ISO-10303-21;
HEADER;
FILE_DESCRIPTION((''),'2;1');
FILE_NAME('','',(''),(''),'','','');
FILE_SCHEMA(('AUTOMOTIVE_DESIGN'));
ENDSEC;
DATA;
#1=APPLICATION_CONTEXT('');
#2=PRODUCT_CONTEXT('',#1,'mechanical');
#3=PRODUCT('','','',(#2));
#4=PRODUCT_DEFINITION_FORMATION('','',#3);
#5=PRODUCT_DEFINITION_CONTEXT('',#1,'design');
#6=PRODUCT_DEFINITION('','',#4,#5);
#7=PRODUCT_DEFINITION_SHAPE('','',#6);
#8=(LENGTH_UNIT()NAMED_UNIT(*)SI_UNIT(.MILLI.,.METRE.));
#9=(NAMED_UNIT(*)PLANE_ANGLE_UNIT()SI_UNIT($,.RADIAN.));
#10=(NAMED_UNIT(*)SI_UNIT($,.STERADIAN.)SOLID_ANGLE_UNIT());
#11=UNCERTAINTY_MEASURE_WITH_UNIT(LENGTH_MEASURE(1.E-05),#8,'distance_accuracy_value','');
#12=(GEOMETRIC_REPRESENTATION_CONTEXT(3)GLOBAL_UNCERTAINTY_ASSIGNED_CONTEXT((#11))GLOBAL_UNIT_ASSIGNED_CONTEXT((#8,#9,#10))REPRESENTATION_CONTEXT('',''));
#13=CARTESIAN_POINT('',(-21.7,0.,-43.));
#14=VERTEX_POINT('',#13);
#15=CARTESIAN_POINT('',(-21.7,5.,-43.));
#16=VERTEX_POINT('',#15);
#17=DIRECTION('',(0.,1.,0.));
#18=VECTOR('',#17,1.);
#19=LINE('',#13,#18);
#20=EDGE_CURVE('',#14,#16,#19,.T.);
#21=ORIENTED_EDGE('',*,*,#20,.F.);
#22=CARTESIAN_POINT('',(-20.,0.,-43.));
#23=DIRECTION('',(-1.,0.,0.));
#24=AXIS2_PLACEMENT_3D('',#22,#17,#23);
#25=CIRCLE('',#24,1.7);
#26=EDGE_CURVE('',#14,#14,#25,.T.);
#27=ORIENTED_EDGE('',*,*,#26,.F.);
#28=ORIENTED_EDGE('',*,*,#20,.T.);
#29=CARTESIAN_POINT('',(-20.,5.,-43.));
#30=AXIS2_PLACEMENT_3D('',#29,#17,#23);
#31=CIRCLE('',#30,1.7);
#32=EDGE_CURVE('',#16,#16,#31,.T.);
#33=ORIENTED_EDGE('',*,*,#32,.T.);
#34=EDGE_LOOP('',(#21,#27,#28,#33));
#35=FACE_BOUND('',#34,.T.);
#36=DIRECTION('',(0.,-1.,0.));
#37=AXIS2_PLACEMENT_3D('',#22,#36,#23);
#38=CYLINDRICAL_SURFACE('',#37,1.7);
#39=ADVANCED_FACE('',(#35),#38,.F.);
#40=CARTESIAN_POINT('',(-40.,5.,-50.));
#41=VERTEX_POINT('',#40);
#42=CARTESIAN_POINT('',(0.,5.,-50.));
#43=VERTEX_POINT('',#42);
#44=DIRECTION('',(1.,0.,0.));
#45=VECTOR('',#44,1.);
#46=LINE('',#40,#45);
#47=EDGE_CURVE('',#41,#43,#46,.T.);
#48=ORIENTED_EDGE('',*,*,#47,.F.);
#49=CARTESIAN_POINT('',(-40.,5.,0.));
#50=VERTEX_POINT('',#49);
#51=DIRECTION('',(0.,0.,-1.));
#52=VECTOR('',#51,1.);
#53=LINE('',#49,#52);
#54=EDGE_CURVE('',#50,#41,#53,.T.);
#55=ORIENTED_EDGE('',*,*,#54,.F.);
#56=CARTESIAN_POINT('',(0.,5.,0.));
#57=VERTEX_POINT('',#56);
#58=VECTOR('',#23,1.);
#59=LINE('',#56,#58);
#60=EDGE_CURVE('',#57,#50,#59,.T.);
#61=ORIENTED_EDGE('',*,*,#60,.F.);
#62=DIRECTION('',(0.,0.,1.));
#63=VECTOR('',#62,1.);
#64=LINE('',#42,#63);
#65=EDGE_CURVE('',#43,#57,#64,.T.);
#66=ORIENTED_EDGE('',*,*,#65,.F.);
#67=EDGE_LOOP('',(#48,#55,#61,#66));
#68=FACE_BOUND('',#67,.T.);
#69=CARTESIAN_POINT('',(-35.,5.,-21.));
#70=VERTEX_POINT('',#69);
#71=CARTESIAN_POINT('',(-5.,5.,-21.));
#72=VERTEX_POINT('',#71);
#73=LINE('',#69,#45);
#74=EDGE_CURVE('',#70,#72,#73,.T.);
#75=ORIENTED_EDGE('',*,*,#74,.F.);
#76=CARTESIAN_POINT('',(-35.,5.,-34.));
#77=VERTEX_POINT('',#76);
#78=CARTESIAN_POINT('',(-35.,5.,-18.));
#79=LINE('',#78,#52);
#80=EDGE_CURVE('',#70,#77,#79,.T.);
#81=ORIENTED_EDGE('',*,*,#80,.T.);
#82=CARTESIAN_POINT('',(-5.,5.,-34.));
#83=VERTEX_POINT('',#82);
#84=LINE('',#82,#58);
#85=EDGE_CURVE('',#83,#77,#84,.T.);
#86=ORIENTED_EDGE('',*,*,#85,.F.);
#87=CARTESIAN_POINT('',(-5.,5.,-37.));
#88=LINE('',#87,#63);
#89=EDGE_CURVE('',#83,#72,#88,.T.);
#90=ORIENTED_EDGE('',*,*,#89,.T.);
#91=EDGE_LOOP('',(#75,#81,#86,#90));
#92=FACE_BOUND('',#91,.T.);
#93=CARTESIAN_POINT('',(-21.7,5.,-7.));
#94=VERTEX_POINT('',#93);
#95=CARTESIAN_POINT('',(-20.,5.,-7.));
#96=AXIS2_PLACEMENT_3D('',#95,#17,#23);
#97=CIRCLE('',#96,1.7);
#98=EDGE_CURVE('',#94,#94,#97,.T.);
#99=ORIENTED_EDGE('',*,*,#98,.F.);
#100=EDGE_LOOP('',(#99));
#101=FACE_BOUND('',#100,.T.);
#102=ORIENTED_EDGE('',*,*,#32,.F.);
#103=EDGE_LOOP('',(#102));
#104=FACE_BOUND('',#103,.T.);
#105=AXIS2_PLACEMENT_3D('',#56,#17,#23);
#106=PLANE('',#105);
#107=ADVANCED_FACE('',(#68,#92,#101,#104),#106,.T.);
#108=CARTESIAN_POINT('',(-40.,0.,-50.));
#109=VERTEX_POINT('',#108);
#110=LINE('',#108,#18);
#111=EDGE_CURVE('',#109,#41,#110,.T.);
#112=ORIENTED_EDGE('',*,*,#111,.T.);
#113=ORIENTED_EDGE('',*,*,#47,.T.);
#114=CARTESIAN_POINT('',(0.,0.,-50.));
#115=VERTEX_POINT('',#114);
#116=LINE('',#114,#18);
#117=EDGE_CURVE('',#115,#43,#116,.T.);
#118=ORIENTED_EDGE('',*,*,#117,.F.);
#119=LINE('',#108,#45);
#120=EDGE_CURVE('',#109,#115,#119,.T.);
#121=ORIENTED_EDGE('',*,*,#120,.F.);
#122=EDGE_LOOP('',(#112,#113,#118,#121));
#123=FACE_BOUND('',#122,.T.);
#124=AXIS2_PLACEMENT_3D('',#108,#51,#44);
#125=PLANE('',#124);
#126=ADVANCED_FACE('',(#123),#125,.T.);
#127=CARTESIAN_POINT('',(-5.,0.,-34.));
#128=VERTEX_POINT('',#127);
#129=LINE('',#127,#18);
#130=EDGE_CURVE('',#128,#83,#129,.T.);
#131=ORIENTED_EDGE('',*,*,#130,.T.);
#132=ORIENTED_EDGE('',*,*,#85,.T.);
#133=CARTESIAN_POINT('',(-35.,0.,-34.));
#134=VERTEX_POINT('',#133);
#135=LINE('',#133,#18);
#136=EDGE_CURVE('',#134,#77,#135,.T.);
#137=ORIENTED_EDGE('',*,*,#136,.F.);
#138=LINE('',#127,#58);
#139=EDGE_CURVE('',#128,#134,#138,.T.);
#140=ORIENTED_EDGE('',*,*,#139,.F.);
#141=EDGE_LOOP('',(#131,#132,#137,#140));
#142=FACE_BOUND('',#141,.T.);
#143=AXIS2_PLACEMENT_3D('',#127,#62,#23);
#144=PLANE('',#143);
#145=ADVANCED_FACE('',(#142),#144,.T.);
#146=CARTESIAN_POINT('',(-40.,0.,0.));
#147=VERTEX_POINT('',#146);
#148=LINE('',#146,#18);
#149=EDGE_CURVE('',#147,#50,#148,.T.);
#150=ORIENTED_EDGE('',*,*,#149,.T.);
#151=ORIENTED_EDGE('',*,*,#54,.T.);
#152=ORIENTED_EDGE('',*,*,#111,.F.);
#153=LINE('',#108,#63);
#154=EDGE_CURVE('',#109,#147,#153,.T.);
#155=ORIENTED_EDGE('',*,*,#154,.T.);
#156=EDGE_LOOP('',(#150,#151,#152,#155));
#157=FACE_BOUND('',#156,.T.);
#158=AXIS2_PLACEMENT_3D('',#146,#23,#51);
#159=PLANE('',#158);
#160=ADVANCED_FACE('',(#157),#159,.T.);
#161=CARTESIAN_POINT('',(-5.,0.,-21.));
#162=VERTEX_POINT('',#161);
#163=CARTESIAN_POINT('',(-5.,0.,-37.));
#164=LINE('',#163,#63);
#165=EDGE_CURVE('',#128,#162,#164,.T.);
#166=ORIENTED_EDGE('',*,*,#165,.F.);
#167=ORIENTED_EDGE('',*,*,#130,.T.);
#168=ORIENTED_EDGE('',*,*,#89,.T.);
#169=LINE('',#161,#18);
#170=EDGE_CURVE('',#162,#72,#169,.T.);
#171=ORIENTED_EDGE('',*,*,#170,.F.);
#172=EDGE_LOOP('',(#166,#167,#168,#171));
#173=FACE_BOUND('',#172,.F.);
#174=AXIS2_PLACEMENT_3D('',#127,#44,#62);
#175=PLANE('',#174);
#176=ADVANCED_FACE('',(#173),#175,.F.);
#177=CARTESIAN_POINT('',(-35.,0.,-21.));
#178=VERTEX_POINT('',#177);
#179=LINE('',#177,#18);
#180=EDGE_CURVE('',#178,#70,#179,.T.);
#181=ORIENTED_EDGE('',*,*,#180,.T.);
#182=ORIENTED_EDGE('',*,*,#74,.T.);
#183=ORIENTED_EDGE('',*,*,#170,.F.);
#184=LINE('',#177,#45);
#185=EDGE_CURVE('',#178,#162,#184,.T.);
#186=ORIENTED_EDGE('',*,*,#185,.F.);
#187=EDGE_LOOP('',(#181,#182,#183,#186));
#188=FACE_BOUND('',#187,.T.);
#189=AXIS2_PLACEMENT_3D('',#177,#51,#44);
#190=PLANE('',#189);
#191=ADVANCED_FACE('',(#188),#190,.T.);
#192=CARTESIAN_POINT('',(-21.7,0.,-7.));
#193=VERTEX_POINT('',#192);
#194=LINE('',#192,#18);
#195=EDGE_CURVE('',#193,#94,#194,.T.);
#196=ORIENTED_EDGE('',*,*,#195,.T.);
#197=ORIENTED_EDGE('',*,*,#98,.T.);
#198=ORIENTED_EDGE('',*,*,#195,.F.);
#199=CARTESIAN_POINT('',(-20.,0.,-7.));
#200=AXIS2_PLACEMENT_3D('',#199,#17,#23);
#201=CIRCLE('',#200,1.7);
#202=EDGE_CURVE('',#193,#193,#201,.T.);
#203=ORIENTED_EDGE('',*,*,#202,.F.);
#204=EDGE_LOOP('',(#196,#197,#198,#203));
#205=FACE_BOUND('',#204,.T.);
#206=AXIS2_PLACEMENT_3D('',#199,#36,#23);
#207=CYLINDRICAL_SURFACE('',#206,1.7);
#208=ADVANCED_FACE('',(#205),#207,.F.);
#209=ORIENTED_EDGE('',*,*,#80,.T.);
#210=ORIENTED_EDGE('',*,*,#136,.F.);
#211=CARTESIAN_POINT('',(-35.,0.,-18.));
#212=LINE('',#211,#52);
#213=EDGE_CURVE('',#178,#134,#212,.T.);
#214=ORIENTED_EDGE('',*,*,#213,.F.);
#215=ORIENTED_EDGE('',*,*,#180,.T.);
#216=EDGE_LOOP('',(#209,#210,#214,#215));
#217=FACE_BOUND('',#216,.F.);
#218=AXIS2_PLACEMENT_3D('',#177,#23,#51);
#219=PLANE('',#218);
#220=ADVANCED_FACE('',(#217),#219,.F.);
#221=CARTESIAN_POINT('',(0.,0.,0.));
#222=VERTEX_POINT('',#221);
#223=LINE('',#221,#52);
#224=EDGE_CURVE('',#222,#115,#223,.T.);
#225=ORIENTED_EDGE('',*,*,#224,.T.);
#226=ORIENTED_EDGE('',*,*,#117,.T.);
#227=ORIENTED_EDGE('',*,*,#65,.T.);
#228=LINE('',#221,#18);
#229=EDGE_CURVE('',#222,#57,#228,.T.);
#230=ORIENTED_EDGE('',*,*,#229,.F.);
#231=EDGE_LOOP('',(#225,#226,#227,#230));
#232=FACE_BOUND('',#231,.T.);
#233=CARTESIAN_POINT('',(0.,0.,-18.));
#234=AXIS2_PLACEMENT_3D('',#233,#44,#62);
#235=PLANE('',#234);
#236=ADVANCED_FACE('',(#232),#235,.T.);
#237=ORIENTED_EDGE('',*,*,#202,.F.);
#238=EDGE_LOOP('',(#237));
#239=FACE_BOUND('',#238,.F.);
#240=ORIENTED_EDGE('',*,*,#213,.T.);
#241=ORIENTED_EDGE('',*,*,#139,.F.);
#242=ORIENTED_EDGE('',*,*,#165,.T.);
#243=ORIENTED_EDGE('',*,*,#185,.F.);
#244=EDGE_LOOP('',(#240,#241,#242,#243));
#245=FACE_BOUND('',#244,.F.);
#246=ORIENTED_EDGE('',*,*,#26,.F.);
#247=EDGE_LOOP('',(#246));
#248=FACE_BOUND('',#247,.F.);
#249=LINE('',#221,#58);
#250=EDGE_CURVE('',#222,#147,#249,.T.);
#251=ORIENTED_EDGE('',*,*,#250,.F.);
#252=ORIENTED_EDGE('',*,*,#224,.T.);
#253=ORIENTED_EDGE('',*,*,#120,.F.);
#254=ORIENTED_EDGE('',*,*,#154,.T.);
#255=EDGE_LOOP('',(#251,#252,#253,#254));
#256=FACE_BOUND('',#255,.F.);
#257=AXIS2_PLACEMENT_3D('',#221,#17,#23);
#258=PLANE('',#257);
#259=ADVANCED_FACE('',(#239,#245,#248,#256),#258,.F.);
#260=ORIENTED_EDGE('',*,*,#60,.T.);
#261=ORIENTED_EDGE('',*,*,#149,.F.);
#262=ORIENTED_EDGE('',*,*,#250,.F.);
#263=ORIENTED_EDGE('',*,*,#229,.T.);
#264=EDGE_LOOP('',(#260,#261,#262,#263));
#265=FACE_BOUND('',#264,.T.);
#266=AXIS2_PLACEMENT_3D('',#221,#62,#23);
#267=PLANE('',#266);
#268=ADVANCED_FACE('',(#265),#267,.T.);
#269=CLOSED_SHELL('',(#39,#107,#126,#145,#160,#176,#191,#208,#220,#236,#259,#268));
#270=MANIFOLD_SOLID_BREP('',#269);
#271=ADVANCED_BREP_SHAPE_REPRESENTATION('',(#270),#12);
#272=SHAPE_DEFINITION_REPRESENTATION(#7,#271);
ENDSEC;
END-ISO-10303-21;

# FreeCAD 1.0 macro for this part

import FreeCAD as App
import Part
import Sketcher
from FreeCAD import Vector
Q = App.Units.Quantity


def add_polygon(sketch, points):
    """Adds a closed chain of lines whose ends are joined by coincident constraints."""
    first, n = sketch.GeometryCount, len(points)
    for a, b in zip(points, points[1:] + points[:1]):
        sketch.addGeometry(Part.LineSegment(App.Vector(*a, 0), App.Vector(*b, 0)), False)
    for i in range(n):
        sketch.addConstraint(Sketcher.Constraint("Coincident", first + i, 2, first + (i + 1) % n, 1))

doc = App.newDocument("Part")
params = doc.addObject("Spreadsheet::Sheet", "Params")
for row, (alias, value) in enumerate([
    ("sketch1_diameter", "3.4 mm"),
    ("sketch1_width", "40 mm"),
    ("sketch1_height", "50 mm"),
    ("sketch1_width2", "30 mm"),
    ("sketch1_height2", "13 mm"),
    ("pad1_length", "5 mm"),
], start=1):
    params.set(f"A{row}", alias)
    params.set(f"B{row}", "=" + value)
    params.setAlias(f"B{row}", alias)

body = doc.addObject("PartDesign::Body", "Body")

sketch1 = body.newObject("Sketcher::SketchObject", "Sketch")
sketch1.AttachmentSupport = (doc.getObject("XZ_Plane"), [""])
sketch1.MapMode = "FlatFace"
add_polygon(sketch1, [(-40, 0), (0, 0), (0, -50), (-40, -50)])
sketch1.addGeometry(Part.Circle(Vector(-20, -43, 0), Vector(0, 0, 1), 1.7), False)
add_polygon(sketch1, [(-5, -34), (-5, -21), (-35, -21), (-35, -34)])
sketch1.addGeometry(Part.Circle(Vector(-20, -7, 0), Vector(0, 0, 1), 1.7), False)
sketch1.addConstraint(Sketcher.Constraint("Horizontal", 0))
sketch1.addConstraint(Sketcher.Constraint("Vertical", 1))
sketch1.addConstraint(Sketcher.Constraint("Horizontal", 2))
sketch1.addConstraint(Sketcher.Constraint("Vertical", 3))
sketch1.addConstraint(Sketcher.Constraint("Vertical", 5))
sketch1.addConstraint(Sketcher.Constraint("Horizontal", 6))
sketch1.addConstraint(Sketcher.Constraint("Vertical", 7))
sketch1.addConstraint(Sketcher.Constraint("Horizontal", 8))
sketch1.addConstraint(Sketcher.Constraint("Coincident", 0, 2, -1, 1))
sketch1.addConstraint(Sketcher.Constraint("Equal", 4, 9))
sketch1.addConstraint(Sketcher.Constraint("Vertical", 4, 3, 9, 3))
sketch1.addConstraint(Sketcher.Constraint("Diameter", 4, Q("3.4 mm")))
sketch1.addConstraint(Sketcher.Constraint("DistanceX", 0, 1, 0, 2, Q("40 mm")))
sketch1.addConstraint(Sketcher.Constraint("DistanceY", 1, 2, 1, 1, Q("50 mm")))
sketch1.addConstraint(Sketcher.Constraint("DistanceX", 6, 2, 6, 1, Q("30 mm")))
sketch1.addConstraint(Sketcher.Constraint("DistanceY", 5, 1, 5, 2, Q("13 mm")))
sketch1.addConstraint(Sketcher.Constraint("DistanceX", 4, 3, -1, 1, Q("20 mm")))
sketch1.addConstraint(Sketcher.Constraint("DistanceY", 4, 3, -1, 1, Q("43 mm")))
sketch1.addConstraint(Sketcher.Constraint("DistanceY", 9, 3, -1, 1, Q("7 mm")))
sketch1.addConstraint(Sketcher.Constraint("DistanceX", 5, 2, -1, 1, Q("5 mm")))
sketch1.addConstraint(Sketcher.Constraint("DistanceY", 5, 2, -1, 1, Q("21 mm")))
sketch1.setExpression("Constraints[19]", "Params.sketch1_diameter")
sketch1.setExpression("Constraints[20]", "Params.sketch1_width")
sketch1.setExpression("Constraints[21]", "Params.sketch1_height")
sketch1.setExpression("Constraints[22]", "Params.sketch1_width2")
sketch1.setExpression("Constraints[23]", "Params.sketch1_height2")
pad1 = body.newObject("PartDesign::Pad", "Pad")
pad1.Profile = sketch1
pad1.setExpression("Length", "Params.pad1_length")
pad1.Reversed = True

doc.recompute()
